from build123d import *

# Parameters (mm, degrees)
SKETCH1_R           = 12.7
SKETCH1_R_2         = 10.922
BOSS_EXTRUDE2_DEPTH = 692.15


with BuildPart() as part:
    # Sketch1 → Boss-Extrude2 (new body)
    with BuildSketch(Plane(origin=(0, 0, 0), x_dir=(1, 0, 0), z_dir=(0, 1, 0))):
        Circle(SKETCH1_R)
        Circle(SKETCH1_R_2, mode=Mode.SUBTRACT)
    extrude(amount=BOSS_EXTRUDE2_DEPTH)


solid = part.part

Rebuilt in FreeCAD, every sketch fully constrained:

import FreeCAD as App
import Part
import Sketcher
from FreeCAD import Vector
Q = App.Units.Quantity

doc = App.newDocument("Part")
body = doc.addObject("PartDesign::Body", "Body")

# Sketch on XZ plane
sketch1 = body.newObject("Sketcher::SketchObject", "Sketch")
sketch1.AttachmentSupport = (doc.getObject("XZ_Plane"), [""])
sketch1.MapMode = "FlatFace"
sketch1.addGeometry([
    Part.Circle(Vector(0, 0, 0), Vector(0, 0, 1), 13),
    Part.Circle(Vector(0, 0, 0), Vector(0, 0, 1), 11),
], False)
sketch1.addConstraint([
    Sketcher.Constraint("Coincident", 0, 3, -1, 1),
    Sketcher.Constraint("Coincident", 1, 3, -1, 1),
    Sketcher.Constraint("Diameter", 0, Q("1 in")),
    Sketcher.Constraint("Diameter", 1, Q("0.86 in")),
])
pad1 = body.newObject("PartDesign::Pad", "Pad")
pad1.Profile = sketch1
pad1.Length = Q("27.25 in")
pad1.Reversed = True

doc.recompute()
